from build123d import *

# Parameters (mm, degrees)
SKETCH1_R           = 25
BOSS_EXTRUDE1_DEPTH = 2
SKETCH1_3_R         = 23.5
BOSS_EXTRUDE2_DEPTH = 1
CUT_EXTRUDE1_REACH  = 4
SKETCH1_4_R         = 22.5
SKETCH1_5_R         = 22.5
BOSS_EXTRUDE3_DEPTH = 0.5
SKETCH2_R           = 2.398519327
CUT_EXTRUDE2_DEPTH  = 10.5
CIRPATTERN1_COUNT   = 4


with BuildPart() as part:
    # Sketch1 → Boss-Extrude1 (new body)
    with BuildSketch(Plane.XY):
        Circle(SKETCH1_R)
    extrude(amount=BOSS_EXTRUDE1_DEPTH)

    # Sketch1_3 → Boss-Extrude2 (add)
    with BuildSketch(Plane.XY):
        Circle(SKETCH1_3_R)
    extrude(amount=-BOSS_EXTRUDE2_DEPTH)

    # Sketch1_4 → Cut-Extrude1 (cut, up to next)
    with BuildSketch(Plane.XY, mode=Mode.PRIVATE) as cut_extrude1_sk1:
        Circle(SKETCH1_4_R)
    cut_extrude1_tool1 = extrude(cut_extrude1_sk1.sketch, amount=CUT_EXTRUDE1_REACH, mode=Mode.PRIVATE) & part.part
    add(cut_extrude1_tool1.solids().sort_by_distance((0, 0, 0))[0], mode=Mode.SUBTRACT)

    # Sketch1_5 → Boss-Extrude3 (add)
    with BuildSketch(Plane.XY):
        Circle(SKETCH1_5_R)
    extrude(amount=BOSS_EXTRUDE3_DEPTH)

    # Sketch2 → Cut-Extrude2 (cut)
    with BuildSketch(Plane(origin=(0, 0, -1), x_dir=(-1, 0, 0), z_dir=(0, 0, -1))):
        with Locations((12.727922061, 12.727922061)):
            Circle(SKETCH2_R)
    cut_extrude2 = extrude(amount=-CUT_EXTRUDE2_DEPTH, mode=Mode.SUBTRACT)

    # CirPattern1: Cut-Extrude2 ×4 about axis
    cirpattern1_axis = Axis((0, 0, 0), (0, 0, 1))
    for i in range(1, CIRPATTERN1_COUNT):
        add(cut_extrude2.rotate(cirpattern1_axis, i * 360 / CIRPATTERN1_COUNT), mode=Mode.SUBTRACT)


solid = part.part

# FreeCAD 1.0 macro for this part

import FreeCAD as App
import Part
import Sketcher

V = App.Vector
Q = App.Units.Quantity

doc = App.newDocument("Part")
params = doc.addObject("Spreadsheet::Sheet", "Params")
for row, (alias, value) in enumerate([
    ("sketch1_diameter", "50 mm"),
    ("pad1_length", "2 mm"),
    ("sketch2_diameter", "47 mm"),
    ("pad2_length", "1 mm"),
    ("sketch3_diameter", "45 mm"),
    ("sketch4_diameter", "45 mm"),
    ("pad3_length", "0.5 mm"),
    ("pocket2_length", "10.5 mm"),
], start=1):
    params.set(f"A{row}", alias)
    params.set(f"B{row}", "=" + value)
    params.setAlias(f"B{row}", alias)

body = doc.addObject("PartDesign::Body", "Body")

sketch1 = doc.addObject("Sketcher::SketchObject", "Sketch")
body.addObject(sketch1)
sketch1.AttachmentSupport = (doc.XY_Plane, [""])
sketch1.MapMode = "FlatFace"
sketch1.addGeometry(Part.Circle(V(0, 0, 0), V(0, 0, 1), 25), False)
sketch1.addConstraint([
    Sketcher.Constraint("Coincident", 0, 3, -1, 1),
    Sketcher.Constraint("Diameter", 0, Q("50 mm")),
])
sketch1.setExpression("Constraints[1]", "Params.sketch1_diameter")
pad1 = doc.addObject("PartDesign::Pad", "Pad")
body.addObject(pad1)
pad1.Profile = sketch1
pad1.setExpression("Length", "Params.pad1_length")

sketch2 = doc.addObject("Sketcher::SketchObject", "Sketch001")
body.addObject(sketch2)
sketch2.AttachmentSupport = (doc.XY_Plane, [""])
sketch2.MapMode = "FlatFace"
sketch2.addGeometry(Part.Circle(V(0, 0, 0), V(0, 0, 1), 24), False)
sketch2.addConstraint([
    Sketcher.Constraint("Coincident", 0, 3, -1, 1),
    Sketcher.Constraint("Diameter", 0, Q("47 mm")),
])
sketch2.setExpression("Constraints[1]", "Params.sketch2_diameter")
pad2 = doc.addObject("PartDesign::Pad", "Pad001")
body.addObject(pad2)
pad2.Profile = sketch2
pad2.setExpression("Length", "Params.pad2_length")
pad2.Reversed = True

sketch3 = doc.addObject("Sketcher::SketchObject", "Sketch002")
body.addObject(sketch3)
sketch3.AttachmentSupport = (doc.XY_Plane, [""])
sketch3.MapMode = "FlatFace"
sketch3.addGeometry(Part.Circle(V(0, 0, 0), V(0, 0, 1), 22), False)
sketch3.addConstraint([
    Sketcher.Constraint("Coincident", 0, 3, -1, 1),
    Sketcher.Constraint("Diameter", 0, Q("45 mm")),
])
sketch3.setExpression("Constraints[1]", "Params.sketch3_diameter")
pocket1 = doc.addObject("PartDesign::Pocket", "Pocket")
body.addObject(pocket1)
pocket1.Profile = sketch3
pocket1.Type = "UpToFirst"
pocket1.Reversed = True

sketch4 = doc.addObject("Sketcher::SketchObject", "Sketch003")
body.addObject(sketch4)
sketch4.AttachmentSupport = (doc.XY_Plane, [""])
sketch4.MapMode = "FlatFace"
sketch4.addGeometry(Part.Circle(V(0, 0, 0), V(0, 0, 1), 22), False)
sketch4.addConstraint([
    Sketcher.Constraint("Coincident", 0, 3, -1, 1),
    Sketcher.Constraint("Diameter", 0, Q("45 mm")),
])
sketch4.setExpression("Constraints[1]", "Params.sketch4_diameter")
pad3 = doc.addObject("PartDesign::Pad", "Pad002")
body.addObject(pad3)
pad3.Profile = sketch4
pad3.setExpression("Length", "Params.pad3_length")

sketch5 = doc.addObject("Sketcher::SketchObject", "Sketch004")
body.addObject(sketch5)
sketch5.AttachmentSupport = (doc.XY_Plane, [""])
sketch5.MapMode = "FlatFace"
sketch5.AttachmentOffset = App.Placement(V(0, 0, -1), App.Rotation())
sketch5.addGeometry(Part.Circle(V(-12.7, 12.7, 0), V(0, 0, 1), 2.4), False)
sketch5.addConstraint([
    Sketcher.Constraint("Diameter", 0, Q("4.797039 mm")),
    Sketcher.Constraint("DistanceX", 0, 3, -1, 1, Q("12.727922 mm")),
    Sketcher.Constraint("DistanceY", -1, 1, 0, 3, Q("12.727922 mm")),
])
pocket2 = doc.addObject("PartDesign::Pocket", "Pocket001")
body.addObject(pocket2)
pocket2.Profile = sketch5
pocket2.setExpression("Length", "Params.pocket2_length")
pocket2.Reversed = True
doc.recompute()

polarpattern = doc.addObject("PartDesign::PolarPattern", "PolarPattern")
body.addObject(polarpattern)
polarpattern.Originals = [pocket2]
polarpattern.Axis = (doc.Z_Axis, [""])
polarpattern.Angle = 360
polarpattern.Occurrences = 4
body.Tip = polarpattern

doc.recompute()
